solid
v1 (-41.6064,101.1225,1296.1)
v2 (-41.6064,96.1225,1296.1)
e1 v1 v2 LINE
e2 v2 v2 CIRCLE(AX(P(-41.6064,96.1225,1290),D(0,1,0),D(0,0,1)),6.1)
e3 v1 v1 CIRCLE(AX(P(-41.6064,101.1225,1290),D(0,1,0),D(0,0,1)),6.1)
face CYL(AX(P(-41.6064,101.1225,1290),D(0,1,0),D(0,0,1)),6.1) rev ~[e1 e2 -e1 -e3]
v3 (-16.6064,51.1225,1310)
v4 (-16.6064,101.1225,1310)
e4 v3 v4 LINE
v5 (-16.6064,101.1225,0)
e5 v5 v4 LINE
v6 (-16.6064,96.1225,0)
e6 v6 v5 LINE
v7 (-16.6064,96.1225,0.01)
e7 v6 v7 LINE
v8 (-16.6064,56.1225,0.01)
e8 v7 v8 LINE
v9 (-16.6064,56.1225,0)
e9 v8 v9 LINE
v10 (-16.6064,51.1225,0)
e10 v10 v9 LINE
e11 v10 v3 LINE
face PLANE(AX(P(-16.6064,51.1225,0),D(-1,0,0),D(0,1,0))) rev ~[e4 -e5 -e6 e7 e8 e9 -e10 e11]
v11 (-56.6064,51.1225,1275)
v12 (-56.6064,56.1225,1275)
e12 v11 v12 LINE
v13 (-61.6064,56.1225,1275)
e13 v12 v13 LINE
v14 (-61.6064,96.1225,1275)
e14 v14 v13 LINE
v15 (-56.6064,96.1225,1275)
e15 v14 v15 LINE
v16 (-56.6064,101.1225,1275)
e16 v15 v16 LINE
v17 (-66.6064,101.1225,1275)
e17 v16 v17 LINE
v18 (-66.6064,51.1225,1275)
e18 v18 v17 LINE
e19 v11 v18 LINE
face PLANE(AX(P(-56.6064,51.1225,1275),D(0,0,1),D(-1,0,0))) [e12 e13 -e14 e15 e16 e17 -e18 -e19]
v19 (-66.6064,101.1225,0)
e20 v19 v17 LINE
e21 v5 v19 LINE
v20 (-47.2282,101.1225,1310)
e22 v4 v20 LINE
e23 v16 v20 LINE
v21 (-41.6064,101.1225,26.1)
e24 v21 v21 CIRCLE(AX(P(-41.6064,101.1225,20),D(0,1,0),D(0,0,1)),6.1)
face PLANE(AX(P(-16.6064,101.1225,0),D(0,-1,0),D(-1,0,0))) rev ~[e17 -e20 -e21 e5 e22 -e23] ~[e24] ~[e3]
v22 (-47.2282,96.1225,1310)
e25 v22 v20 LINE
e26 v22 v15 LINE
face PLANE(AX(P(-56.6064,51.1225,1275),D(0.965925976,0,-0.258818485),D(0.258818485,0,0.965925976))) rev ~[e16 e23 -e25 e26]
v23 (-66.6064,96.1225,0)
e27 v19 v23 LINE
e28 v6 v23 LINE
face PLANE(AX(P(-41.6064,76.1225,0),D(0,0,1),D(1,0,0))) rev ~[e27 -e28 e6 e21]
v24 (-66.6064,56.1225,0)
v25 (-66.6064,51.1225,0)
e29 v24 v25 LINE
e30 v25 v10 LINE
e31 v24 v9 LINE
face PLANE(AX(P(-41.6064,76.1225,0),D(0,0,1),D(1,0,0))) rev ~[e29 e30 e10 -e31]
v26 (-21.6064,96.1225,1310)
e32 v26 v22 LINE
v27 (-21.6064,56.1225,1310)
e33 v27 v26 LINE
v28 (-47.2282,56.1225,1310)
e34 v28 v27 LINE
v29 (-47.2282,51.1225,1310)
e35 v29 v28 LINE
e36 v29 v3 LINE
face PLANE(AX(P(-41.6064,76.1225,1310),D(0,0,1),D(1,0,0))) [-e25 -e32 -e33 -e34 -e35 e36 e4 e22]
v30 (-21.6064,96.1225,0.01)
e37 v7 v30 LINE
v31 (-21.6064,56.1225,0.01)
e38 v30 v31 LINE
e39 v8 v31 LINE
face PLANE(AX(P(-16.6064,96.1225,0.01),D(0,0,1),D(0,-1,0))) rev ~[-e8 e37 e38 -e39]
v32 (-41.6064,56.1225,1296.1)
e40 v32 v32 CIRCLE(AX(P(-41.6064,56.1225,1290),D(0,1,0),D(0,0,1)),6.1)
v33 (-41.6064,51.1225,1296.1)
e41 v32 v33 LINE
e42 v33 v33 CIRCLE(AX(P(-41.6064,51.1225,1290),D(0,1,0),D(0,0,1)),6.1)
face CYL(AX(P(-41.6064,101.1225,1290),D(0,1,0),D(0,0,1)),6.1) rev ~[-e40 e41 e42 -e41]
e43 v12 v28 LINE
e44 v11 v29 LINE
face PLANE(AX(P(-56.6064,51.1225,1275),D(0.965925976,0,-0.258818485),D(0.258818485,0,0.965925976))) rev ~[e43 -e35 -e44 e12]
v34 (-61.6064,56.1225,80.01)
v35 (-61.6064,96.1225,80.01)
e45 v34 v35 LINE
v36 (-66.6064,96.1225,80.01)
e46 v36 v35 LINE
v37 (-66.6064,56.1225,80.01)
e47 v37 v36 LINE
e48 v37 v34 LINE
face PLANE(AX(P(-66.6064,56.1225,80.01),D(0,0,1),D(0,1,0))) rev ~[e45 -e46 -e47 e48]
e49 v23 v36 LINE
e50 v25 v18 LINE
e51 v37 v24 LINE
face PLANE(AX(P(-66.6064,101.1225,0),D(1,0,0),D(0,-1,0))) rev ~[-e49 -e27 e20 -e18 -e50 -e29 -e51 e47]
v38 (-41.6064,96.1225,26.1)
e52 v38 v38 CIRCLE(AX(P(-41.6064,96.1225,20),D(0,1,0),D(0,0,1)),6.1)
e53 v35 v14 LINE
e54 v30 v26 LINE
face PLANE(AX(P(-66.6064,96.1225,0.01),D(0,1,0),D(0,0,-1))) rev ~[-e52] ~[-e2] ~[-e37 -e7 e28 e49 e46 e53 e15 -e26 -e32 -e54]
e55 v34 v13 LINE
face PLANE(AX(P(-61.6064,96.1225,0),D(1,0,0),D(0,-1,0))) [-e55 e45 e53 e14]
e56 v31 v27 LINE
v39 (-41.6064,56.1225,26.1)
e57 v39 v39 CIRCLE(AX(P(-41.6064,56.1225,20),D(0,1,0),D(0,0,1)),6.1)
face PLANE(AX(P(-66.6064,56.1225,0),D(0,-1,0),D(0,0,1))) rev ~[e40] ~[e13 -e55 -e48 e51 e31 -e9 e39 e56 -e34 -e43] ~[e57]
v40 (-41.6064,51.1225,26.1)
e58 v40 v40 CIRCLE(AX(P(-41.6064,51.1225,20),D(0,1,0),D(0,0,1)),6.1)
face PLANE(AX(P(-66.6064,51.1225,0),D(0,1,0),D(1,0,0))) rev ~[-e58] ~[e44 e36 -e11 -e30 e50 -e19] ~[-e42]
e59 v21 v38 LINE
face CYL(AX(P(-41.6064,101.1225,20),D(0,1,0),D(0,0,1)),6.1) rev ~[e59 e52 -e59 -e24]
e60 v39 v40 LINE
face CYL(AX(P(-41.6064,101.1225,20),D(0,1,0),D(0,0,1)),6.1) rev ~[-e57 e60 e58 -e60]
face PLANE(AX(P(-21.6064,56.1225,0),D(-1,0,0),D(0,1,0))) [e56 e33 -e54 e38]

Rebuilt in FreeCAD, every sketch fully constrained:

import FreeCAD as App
import Part
import Sketcher

V = App.Vector
Q = App.Units.Quantity


def add_polygon(sketch, points):
    """Adds a closed chain of lines whose ends are joined by coincident constraints."""
    first, n = sketch.GeometryCount, len(points)
    for a, b in zip(points, points[1:] + points[:1]):
        sketch.addGeometry(Part.LineSegment(App.Vector(*a, 0), App.Vector(*b, 0)), False)
    for i in range(n):
        sketch.addConstraint(Sketcher.Constraint("Coincident", first + i, 2, first + (i + 1) % n, 1))

doc = App.newDocument("Part")
body = doc.addObject("PartDesign::Body", "Body")

sketch1 = body.newObject("Sketcher::SketchObject", "Sketch")
sketch1.AttachmentSupport = (doc.getObject("XY_Plane"), [""])
sketch1.MapMode = "FlatFace"
add_polygon(sketch1, [(-67, 101), (-67, 51), (-17, 51), (-17, 101)])
add_polygon(sketch1, [(-22, 56), (-62, 56), (-62, 96), (-22, 96)])
sketch1.addConstraint([
    Sketcher.Constraint("Vertical", 0),
    Sketcher.Constraint("Horizontal", 1),
    Sketcher.Constraint("Vertical", 2),
    Sketcher.Constraint("Horizontal", 3),
    Sketcher.Constraint("Horizontal", 4),
    Sketcher.Constraint("Vertical", 5),
    Sketcher.Constraint("Horizontal", 6),
    Sketcher.Constraint("Vertical", 7),
    Sketcher.Constraint("Equal", 3, 0),
    Sketcher.Constraint("Equal", 6, 5),
    Sketcher.Constraint("DistanceX", 1, 1, 1, 2, 50.0),
    Sketcher.Constraint("DistanceX", 4, 2, 4, 1, 40.0),
    Sketcher.Constraint("DistanceX", 0, 2, 4, 2, 5.0),
    Sketcher.Constraint("DistanceY", 0, 2, 4, 2, 5.0),
    Sketcher.Constraint("DistanceX", 0, 2, -1, 1, 66.6064),
    Sketcher.Constraint("DistanceY", -1, 1, 0, 2, 51.1225),
])
pad1 = body.newObject("PartDesign::Pad", "Pad")
pad1.Profile = sketch1
pad1.Length = 1310

sketch2 = body.newObject("Sketcher::SketchObject", "Sketch001")
sketch2.AttachmentSupport = (doc.getObject("XZ_Plane"), [""])
sketch2.MapMode = "FlatFace"
sketch2.AttachmentOffset = App.Placement(V(0, 0, -101.1225), App.Rotation())
sketch2.addGeometry([
    Part.Circle(V(-42, 1290, 0), V(0, 0, 1), 6),
    Part.Circle(V(-42, 20, 0), V(0, 0, 1), 6),
], False)
sketch2.addConstraint([
    Sketcher.Constraint("Equal", 0, 1),
    Sketcher.Constraint("Vertical", 0, 3, 1, 3),
    Sketcher.Constraint("Diameter", 0, 12.2),
    Sketcher.Constraint("DistanceY", -1, 1, 0, 3, 1290.0),
    Sketcher.Constraint("DistanceY", -1, 1, 1, 3, 20.0),
    Sketcher.Constraint("DistanceX", 0, 3, -1, 1, 41.6064),
])
pocket1 = body.newObject("PartDesign::Pocket", "Pocket")
pocket1.Profile = sketch2
pocket1.Type = "ThroughAll"
pocket1.Reversed = True

sketch3 = body.newObject("Sketcher::SketchObject", "Sketch002")
sketch3.AttachmentSupport = (doc.getObject("YZ_Plane"), [""])
sketch3.MapMode = "FlatFace"
sketch3.AttachmentOffset = App.Placement(V(0, 0, -66.6064), App.Rotation())
add_polygon(sketch3, [(96.123, 0.01), (96.123, 0), (56.123, 0), (56.123, 0.01)])
sketch3.addConstraint([
    Sketcher.Constraint("Vertical", 0),
    Sketcher.Constraint("Horizontal", 1),
    Sketcher.Constraint("Vertical", 2),
    Sketcher.Constraint("Horizontal", 3),
    Sketcher.Constraint("PointOnObject", 0, 2, -1),
    Sketcher.Constraint("DistanceX", 1, 2, 1, 1, 40.0),
    Sketcher.Constraint("DistanceY", 0, 2, 0, 1, 0.01),
    Sketcher.Constraint("DistanceX", -1, 1, 0, 2, 96.1225),
])
pocket2 = body.newObject("PartDesign::Pocket", "Pocket001")
pocket2.Profile = sketch3
pocket2.Length = 5
pocket2.Reversed = True

sketch4 = body.newObject("Sketcher::SketchObject", "Sketch003")
sketch4.AttachmentSupport = (doc.getObject("YZ_Plane"), [""])
sketch4.MapMode = "FlatFace"
sketch4.AttachmentOffset = App.Placement(V(0, 0, -16.6064), App.Rotation())
add_polygon(sketch4, [(56.123, 0), (96.123, 0), (96.123, 0.01), (56.123, 0.01)])
sketch4.addConstraint([
    Sketcher.Constraint("Horizontal", 0),
    Sketcher.Constraint("Vertical", 1),
    Sketcher.Constraint("Horizontal", 2),
    Sketcher.Constraint("Vertical", 3),
    Sketcher.Constraint("PointOnObject", 0, 2, -1),
    Sketcher.Constraint("DistanceX", 0, 1, 0, 2, 40.0),
    Sketcher.Constraint("DistanceY", 1, 1, 1, 2, 0.01),
    Sketcher.Constraint("DistanceX", -1, 1, 0, 2, 96.1225),
])
pocket3 = body.newObject("PartDesign::Pocket", "Pocket002")
pocket3.Profile = sketch4
pocket3.Length = 5

sketch5 = body.newObject("Sketcher::SketchObject", "Sketch004")
sketch5.AttachmentSupport = (doc.getObject("XZ_Plane"), [""])
sketch5.MapMode = "FlatFace"
sketch5.AttachmentOffset = App.Placement(V(0, 0, -51.1225), App.Rotation())
add_polygon(sketch5, [(-47, 1310), (-67, 1310), (-67, 1275), (-57, 1275)])
sketch5.addConstraint([
    Sketcher.Constraint("Horizontal", 0),
    Sketcher.Constraint("Vertical", 1),
    Sketcher.Constraint("Horizontal", 2),
    Sketcher.Constraint("DistanceX", 2, 1, 2, 2, 10.0),
    Sketcher.Constraint("DistanceY", 1, 2, 1, 1, 35.0),
    Sketcher.Constraint("Angle", 3, Q("75 deg")),
    Sketcher.Constraint("DistanceY", -1, 1, 0, 2, 1310.0),
    Sketcher.Constraint("DistanceX", 0, 2, -1, 1, 66.6064),
])
pocket4 = body.newObject("PartDesign::Pocket", "Pocket003")
pocket4.Profile = sketch5
pocket4.Type = "ThroughAll"

sketch6 = body.newObject("Sketcher::SketchObject", "Sketch005")
sketch6.AttachmentSupport = (doc.getObject("YZ_Plane"), [""])
sketch6.MapMode = "FlatFace"
sketch6.AttachmentOffset = App.Placement(V(0, 0, -66.6064), App.Rotation())
add_polygon(sketch6, [(96, 0), (56, 0), (56, 80), (96, 80)])
sketch6.addConstraint([
    Sketcher.Constraint("Horizontal", 0),
    Sketcher.Constraint("Vertical", 1),
    Sketcher.Constraint("Horizontal", 2),
    Sketcher.Constraint("Vertical", 3),
    Sketcher.Constraint("DistanceX", 0, 2, 0, 1, 40.0),
    Sketcher.Constraint("DistanceY", 1, 1, 1, 2, 80.0),
    Sketcher.Constraint("DistanceY", -1, 1, 0, 2, 0.01),
    Sketcher.Constraint("DistanceX", -1, 1, 0, 2, 56.1225),
])
pocket5 = body.newObject("PartDesign::Pocket", "Pocket004")
pocket5.Profile = sketch6
pocket5.Type = "UpToFirst"
pocket5.Reversed = True

doc.recompute()
